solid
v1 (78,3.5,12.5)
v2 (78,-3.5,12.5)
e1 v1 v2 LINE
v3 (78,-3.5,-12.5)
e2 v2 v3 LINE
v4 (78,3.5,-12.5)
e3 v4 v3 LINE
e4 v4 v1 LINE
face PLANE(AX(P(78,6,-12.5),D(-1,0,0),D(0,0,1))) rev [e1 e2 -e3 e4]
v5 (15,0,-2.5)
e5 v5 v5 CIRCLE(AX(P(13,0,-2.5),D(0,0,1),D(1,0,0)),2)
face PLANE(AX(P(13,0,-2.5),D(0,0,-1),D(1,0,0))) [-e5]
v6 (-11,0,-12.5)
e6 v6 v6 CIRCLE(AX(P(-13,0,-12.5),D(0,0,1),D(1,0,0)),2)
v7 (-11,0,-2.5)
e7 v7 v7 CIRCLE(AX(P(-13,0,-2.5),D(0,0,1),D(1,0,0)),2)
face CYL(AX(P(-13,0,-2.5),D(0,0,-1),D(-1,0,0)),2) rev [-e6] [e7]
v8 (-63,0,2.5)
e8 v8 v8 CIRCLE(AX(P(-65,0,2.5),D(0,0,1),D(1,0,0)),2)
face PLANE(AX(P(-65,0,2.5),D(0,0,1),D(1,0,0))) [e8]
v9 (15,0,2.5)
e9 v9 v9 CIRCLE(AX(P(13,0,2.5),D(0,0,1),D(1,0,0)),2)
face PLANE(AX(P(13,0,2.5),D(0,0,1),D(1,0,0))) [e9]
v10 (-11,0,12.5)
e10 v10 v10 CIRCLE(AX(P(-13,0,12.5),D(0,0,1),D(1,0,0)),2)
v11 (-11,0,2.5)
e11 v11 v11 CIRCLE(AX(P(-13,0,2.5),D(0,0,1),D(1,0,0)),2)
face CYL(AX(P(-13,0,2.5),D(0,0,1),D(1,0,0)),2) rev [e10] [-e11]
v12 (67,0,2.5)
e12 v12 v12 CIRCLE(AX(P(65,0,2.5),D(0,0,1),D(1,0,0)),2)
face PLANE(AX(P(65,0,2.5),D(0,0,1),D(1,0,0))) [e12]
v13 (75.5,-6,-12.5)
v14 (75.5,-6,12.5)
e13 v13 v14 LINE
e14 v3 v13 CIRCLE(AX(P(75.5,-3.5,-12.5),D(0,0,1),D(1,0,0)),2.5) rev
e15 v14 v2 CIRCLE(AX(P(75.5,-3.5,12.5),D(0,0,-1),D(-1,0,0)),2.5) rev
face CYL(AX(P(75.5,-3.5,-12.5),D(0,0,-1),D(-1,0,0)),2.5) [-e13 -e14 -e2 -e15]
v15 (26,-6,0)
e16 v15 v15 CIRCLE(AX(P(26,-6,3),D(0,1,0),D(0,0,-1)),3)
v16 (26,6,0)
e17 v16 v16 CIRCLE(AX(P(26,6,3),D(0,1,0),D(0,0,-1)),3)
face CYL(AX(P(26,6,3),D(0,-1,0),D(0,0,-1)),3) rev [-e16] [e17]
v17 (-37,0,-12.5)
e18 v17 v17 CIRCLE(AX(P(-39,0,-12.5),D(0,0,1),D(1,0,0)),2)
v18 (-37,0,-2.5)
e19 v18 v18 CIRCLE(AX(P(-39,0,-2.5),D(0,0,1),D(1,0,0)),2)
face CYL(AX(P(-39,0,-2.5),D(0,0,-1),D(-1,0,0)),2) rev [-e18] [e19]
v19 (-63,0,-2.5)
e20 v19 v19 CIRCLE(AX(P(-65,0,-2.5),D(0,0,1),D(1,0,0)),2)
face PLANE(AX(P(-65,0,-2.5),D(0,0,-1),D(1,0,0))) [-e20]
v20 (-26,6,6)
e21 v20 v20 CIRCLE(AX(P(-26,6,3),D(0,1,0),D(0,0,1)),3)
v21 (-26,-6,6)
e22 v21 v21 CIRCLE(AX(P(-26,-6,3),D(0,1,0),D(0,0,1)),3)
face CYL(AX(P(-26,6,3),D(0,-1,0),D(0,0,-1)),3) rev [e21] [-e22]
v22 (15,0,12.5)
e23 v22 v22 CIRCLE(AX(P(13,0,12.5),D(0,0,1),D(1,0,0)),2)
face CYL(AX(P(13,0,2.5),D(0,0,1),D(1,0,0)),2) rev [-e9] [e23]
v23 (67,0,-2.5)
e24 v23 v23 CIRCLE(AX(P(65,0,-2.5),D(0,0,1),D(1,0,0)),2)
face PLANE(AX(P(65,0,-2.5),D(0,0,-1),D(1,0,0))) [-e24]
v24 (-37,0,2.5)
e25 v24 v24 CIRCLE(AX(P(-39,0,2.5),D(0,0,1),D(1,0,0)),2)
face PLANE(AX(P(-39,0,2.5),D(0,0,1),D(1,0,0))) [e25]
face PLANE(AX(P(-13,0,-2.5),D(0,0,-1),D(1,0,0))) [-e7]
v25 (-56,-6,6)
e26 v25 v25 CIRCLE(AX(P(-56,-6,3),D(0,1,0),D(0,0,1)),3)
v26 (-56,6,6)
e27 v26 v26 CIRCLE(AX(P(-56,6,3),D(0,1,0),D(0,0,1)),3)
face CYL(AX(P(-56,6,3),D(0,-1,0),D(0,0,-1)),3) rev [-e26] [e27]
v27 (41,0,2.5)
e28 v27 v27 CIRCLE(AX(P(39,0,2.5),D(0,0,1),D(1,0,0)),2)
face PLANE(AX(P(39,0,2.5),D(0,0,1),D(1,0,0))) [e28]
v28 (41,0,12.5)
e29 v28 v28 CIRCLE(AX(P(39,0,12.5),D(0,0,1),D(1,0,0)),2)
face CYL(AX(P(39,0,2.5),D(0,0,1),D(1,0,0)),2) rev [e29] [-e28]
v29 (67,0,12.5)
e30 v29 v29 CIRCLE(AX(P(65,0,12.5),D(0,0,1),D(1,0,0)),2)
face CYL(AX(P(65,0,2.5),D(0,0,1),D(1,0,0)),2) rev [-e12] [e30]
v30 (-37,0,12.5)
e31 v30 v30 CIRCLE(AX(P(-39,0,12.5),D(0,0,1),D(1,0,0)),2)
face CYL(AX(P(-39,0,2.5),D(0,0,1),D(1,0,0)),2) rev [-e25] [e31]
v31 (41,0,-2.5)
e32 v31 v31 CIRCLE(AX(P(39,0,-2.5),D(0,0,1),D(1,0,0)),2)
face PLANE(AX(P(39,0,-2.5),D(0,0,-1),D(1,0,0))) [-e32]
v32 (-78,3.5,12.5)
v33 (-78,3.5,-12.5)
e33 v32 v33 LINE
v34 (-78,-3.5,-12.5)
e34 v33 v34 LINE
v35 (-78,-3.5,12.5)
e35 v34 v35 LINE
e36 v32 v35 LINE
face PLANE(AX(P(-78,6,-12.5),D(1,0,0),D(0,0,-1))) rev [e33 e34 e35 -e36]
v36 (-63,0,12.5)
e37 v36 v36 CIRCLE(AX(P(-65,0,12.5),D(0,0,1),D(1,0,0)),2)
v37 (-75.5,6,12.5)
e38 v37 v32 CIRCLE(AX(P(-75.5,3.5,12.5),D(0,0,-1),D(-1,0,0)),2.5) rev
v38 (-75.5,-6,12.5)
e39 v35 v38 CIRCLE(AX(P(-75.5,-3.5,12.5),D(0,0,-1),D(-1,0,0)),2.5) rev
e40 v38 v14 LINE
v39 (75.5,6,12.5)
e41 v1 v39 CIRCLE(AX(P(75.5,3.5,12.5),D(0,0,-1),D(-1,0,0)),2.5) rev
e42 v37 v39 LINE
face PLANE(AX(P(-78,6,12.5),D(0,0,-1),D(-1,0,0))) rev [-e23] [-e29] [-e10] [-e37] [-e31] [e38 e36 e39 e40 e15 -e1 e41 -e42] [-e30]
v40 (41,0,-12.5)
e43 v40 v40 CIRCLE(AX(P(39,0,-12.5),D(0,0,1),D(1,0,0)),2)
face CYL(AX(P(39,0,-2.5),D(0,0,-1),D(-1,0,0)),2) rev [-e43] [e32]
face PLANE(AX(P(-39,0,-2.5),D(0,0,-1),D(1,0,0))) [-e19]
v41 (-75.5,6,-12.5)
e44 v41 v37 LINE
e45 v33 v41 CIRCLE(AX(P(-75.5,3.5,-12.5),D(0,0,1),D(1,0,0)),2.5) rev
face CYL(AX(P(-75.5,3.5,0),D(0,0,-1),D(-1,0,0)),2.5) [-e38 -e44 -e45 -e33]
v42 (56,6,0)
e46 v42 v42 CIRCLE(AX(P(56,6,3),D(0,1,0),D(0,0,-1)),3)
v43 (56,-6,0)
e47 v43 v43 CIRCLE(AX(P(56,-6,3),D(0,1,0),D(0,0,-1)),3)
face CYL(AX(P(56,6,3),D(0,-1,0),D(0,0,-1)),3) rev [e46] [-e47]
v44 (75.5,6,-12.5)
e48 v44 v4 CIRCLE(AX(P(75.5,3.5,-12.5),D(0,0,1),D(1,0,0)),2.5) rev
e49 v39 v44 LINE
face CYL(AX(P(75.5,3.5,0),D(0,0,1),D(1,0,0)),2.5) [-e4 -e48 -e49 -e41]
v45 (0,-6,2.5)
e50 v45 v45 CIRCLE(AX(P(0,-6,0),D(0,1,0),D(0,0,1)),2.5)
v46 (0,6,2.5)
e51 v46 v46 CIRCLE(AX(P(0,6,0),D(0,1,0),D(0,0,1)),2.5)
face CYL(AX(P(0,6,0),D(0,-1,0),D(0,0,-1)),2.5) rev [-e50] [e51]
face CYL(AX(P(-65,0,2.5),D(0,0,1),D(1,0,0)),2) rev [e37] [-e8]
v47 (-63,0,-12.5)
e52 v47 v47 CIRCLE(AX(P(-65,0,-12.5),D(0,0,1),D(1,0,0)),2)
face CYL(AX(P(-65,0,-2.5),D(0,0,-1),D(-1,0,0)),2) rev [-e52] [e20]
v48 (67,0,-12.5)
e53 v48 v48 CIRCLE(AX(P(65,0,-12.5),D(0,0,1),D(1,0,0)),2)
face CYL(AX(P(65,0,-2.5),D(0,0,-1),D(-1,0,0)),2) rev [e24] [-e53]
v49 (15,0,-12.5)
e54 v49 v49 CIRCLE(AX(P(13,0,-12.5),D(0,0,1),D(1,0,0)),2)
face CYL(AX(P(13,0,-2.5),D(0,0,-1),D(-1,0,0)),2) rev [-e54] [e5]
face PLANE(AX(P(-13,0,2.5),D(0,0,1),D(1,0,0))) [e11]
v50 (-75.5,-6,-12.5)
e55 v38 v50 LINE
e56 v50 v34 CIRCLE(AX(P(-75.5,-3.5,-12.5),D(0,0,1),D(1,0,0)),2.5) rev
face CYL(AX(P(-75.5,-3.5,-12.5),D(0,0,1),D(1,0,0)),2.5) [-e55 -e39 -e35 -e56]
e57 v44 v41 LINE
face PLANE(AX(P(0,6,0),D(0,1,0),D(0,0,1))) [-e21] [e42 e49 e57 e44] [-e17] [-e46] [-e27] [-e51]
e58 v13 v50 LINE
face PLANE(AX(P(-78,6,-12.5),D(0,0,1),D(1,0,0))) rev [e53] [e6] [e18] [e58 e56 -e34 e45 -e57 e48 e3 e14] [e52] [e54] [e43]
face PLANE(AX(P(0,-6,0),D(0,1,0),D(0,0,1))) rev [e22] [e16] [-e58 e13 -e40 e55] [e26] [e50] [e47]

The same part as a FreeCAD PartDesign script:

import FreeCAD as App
import Part
import Sketcher
from FreeCAD import Vector
Q = App.Units.Quantity


def edges_at(feature, points):
    """Names of the edges that pass closest to the given points."""
    edges = feature.Shape.Edges
    near = lambda p: min(range(len(edges)), key=lambda i: edges[i].distToShape(Part.Vertex(*p))[0])
    return sorted({f"Edge{near(p) + 1}" for p in points})


def add_polygon(sketch, points):
    """Adds a closed chain of lines whose ends are joined by coincident constraints."""
    first, n = sketch.GeometryCount, len(points)
    for a, b in zip(points, points[1:] + points[:1]):
        sketch.addGeometry(Part.LineSegment(App.Vector(*a, 0), App.Vector(*b, 0)), False)
    for i in range(n):
        sketch.addConstraint(Sketcher.Constraint("Coincident", first + i, 2, first + (i + 1) % n, 1))

doc = App.newDocument("Part")
params = doc.addObject("Spreadsheet::Sheet", "Params")
for row, (alias, value) in enumerate([
    ("sketch1_diameter", "6 mm"),
    ("sketch1_diameter2", "5 mm"),
    ("sketch1_width", "156 mm"),
    ("sketch1_height", "25 mm"),
    ("pad1_length", "12 mm"),
    ("fillet_radius", "2.5 mm"),
    ("sketch2_diameter", "4 mm"),
    ("pocket1_length", "10 mm"),
    ("linearpattern_pitch", "26 mm"),
    ("sketch3_diameter", "4 mm"),
    ("pocket2_length", "10 mm"),
    ("sketch4_diameter", "4 mm"),
    ("pocket3_length", "10 mm"),
    ("sketch5_diameter", "4 mm"),
    ("pocket4_length", "10 mm"),
    ("sketch6_diameter", "4 mm"),
    ("pocket5_length", "10 mm"),
    ("sketch7_diameter", "4 mm"),
    ("pocket6_length", "10 mm"),
], start=1):
    params.set(f"A{row}", alias)
    params.set(f"B{row}", "=" + value)
    params.setAlias(f"B{row}", alias)

body = doc.addObject("PartDesign::Body", "Body")

# Sketch on XZ plane
sketch1 = body.newObject("Sketcher::SketchObject", "Sketch")
sketch1.AttachmentSupport = (doc.getObject("XZ_Plane"), [""])
sketch1.MapMode = "FlatFace"
add_polygon(sketch1, [(-78, -12.5), (-78, 12.5), (78, 12.5), (78, -12.5)])  # lines 0-3
sketch1.addGeometry(Part.Circle(Vector(-56, 3, 0), Vector(0, 0, 1), 3), False)  # 4
sketch1.addGeometry(Part.Circle(Vector(-26, 3, 0), Vector(0, 0, 1), 3), False)  # 5
sketch1.addGeometry(Part.Circle(Vector(26, 3, 0), Vector(0, 0, 1), 3), False)  # 6
sketch1.addGeometry(Part.Circle(Vector(56, 3, 0), Vector(0, 0, 1), 3), False)  # 7
sketch1.addGeometry(Part.Circle(Vector(0, 0, 0), Vector(0, 0, 1), 2.5), False)  # 8
sketch1.addConstraint([
    Sketcher.Constraint("Vertical", 0),
    Sketcher.Constraint("Horizontal", 1),
    Sketcher.Constraint("Vertical", 2),
    Sketcher.Constraint("Horizontal", 3),
    Sketcher.Constraint("Coincident", 8, 3, -1, 1),
    Sketcher.Constraint("Equal", 4, 5),
    Sketcher.Constraint("Equal", 5, 6),
    Sketcher.Constraint("Equal", 6, 7),
    Sketcher.Constraint("Symmetric", 0, 2, 2, 2, -1, 1),
    Sketcher.Constraint("Symmetric", 5, 3, 6, 3, -2),
    Sketcher.Constraint("Symmetric", 4, 3, 7, 3, -2),
    Sketcher.Constraint("Horizontal", 4, 3, 5, 3),
    Sketcher.Constraint("Diameter", 4, Q("6 mm")),
    Sketcher.Constraint("Diameter", 8, Q("5 mm")),
    Sketcher.Constraint("DistanceX", 1, 1, 1, 2, Q("156 mm")),
    Sketcher.Constraint("DistanceY", 0, 1, 0, 2, Q("25 mm")),
    Sketcher.Constraint("DistanceX", 4, 3, -1, 1, Q("56 mm")),
    Sketcher.Constraint("DistanceY", -1, 1, 4, 3, Q("3 mm")),
    Sketcher.Constraint("DistanceX", 5, 3, -1, 1, Q("26 mm")),
])
sketch1.setExpression("Constraints[16]", "Params.sketch1_diameter")
sketch1.setExpression("Constraints[17]", "Params.sketch1_diameter2")
sketch1.setExpression("Constraints[18]", "Params.sketch1_width")
sketch1.setExpression("Constraints[19]", "Params.sketch1_height")
pad1 = body.newObject("PartDesign::Pad", "Pad")
pad1.Profile = sketch1
pad1.setExpression("Length", "Params.pad1_length")
pad1.Midplane = True
doc.recompute()

fillet = body.newObject("PartDesign::Fillet", "Fillet")
fillet.Base = (pad1, edges_at(pad1, [
    (-78, 6, 0),
    (78, 6, 0),
    (-78, -6, 0),
    (78, -6, 0),
]))
fillet.setExpression("Radius", "Params.fillet_radius")

# Sketch on XY plane
sketch2 = body.newObject("Sketcher::SketchObject", "Sketch001")
sketch2.AttachmentSupport = (doc.getObject("XY_Plane"), [""])
sketch2.MapMode = "FlatFace"
sketch2.AttachmentOffset = App.Placement(Vector(0, 0, 12.5), App.Rotation())
sketch2.addGeometry(Part.Circle(Vector(-65, 0, 0), Vector(0, 0, 1), 2), False)
sketch2.addConstraint([
    Sketcher.Constraint("PointOnObject", 0, 3, -1),
    Sketcher.Constraint("Diameter", 0, Q("4 mm")),
    Sketcher.Constraint("DistanceX", 0, 3, -1, 1, Q("65 mm")),
])
sketch2.setExpression("Constraints[1]", "Params.sketch2_diameter")
pocket1 = body.newObject("PartDesign::Pocket", "Pocket")
pocket1.Profile = sketch2
pocket1.setExpression("Length", "Params.pocket1_length")
doc.recompute()

linearpattern = body.newObject("PartDesign::LinearPattern", "LinearPattern")
linearpattern.Originals = [pocket1]
linearpattern.Direction = (doc.getObject("X_Axis"), [""])
linearpattern.Mode = "offset"
linearpattern.setExpression("Offset", "Params.linearpattern_pitch")
linearpattern.Occurrences = 6
body.Tip = linearpattern
doc.recompute()

mirrored = body.newObject("PartDesign::Mirrored", "Mirrored")
mirrored.Originals = [pocket1]
mirrored.MirrorPlane = (doc.getObject("XY_Plane"), [""])
body.Tip = mirrored

# Sketch on XY plane
sketch3 = body.newObject("Sketcher::SketchObject", "Sketch002")
sketch3.AttachmentSupport = (doc.getObject("XY_Plane"), [""])
sketch3.MapMode = "FlatFace"
sketch3.AttachmentOffset = App.Placement(Vector(0, 0, -12.5), App.Rotation())
sketch3.addGeometry(Part.Circle(Vector(-39, 0, 0), Vector(0, 0, 1), 2), False)
sketch3.addConstraint([
    Sketcher.Constraint("PointOnObject", 0, 3, -1),
    Sketcher.Constraint("Diameter", 0, Q("4 mm")),
    Sketcher.Constraint("DistanceX", 0, 3, -1, 1, Q("39 mm")),
])
sketch3.setExpression("Constraints[1]", "Params.sketch3_diameter")
pocket2 = body.newObject("PartDesign::Pocket", "Pocket001")
pocket2.Profile = sketch3
pocket2.setExpression("Length", "Params.pocket2_length")
pocket2.Reversed = True

# Sketch on XY plane
sketch4 = body.newObject("Sketcher::SketchObject", "Sketch003")
sketch4.AttachmentSupport = (doc.getObject("XY_Plane"), [""])
sketch4.MapMode = "FlatFace"
sketch4.AttachmentOffset = App.Placement(Vector(0, 0, -12.5), App.Rotation())
sketch4.addGeometry(Part.Circle(Vector(-13, 0, 0), Vector(0, 0, 1), 2), False)
sketch4.addConstraint([
    Sketcher.Constraint("PointOnObject", 0, 3, -1),
    Sketcher.Constraint("Diameter", 0, Q("4 mm")),
    Sketcher.Constraint("DistanceX", 0, 3, -1, 1, Q("13 mm")),
])
sketch4.setExpression("Constraints[1]", "Params.sketch4_diameter")
pocket3 = body.newObject("PartDesign::Pocket", "Pocket002")
pocket3.Profile = sketch4
pocket3.setExpression("Length", "Params.pocket3_length")
pocket3.Reversed = True

# Sketch on XY plane
sketch5 = body.newObject("Sketcher::SketchObject", "Sketch004")
sketch5.AttachmentSupport = (doc.getObject("XY_Plane"), [""])
sketch5.MapMode = "FlatFace"
sketch5.AttachmentOffset = App.Placement(Vector(0, 0, -12.5), App.Rotation())
sketch5.addGeometry(Part.Circle(Vector(13, 0, 0), Vector(0, 0, 1), 2), False)
sketch5.addConstraint([
    Sketcher.Constraint("PointOnObject", 0, 3, -1),
    Sketcher.Constraint("Diameter", 0, Q("4 mm")),
    Sketcher.Constraint("DistanceX", -1, 1, 0, 3, Q("13 mm")),
])
sketch5.setExpression("Constraints[1]", "Params.sketch5_diameter")
pocket4 = body.newObject("PartDesign::Pocket", "Pocket003")
pocket4.Profile = sketch5
pocket4.setExpression("Length", "Params.pocket4_length")
pocket4.Reversed = True

# Sketch on XY plane
sketch6 = body.newObject("Sketcher::SketchObject", "Sketch005")
sketch6.AttachmentSupport = (doc.getObject("XY_Plane"), [""])
sketch6.MapMode = "FlatFace"
sketch6.AttachmentOffset = App.Placement(Vector(0, 0, -12.5), App.Rotation())
sketch6.addGeometry(Part.Circle(Vector(39, 0, 0), Vector(0, 0, 1), 2), False)
sketch6.addConstraint([
    Sketcher.Constraint("PointOnObject", 0, 3, -1),
    Sketcher.Constraint("Diameter", 0, Q("4 mm")),
    Sketcher.Constraint("DistanceX", -1, 1, 0, 3, Q("39 mm")),
])
sketch6.setExpression("Constraints[1]", "Params.sketch6_diameter")
pocket5 = body.newObject("PartDesign::Pocket", "Pocket004")
pocket5.Profile = sketch6
pocket5.setExpression("Length", "Params.pocket5_length")
pocket5.Reversed = True

# Sketch on XY plane
sketch7 = body.newObject("Sketcher::SketchObject", "Sketch006")
sketch7.AttachmentSupport = (doc.getObject("XY_Plane"), [""])
sketch7.MapMode = "FlatFace"
sketch7.AttachmentOffset = App.Placement(Vector(0, 0, -12.5), App.Rotation())
sketch7.addGeometry(Part.Circle(Vector(65, 0, 0), Vector(0, 0, 1), 2), False)
sketch7.addConstraint([
    Sketcher.Constraint("PointOnObject", 0, 3, -1),
    Sketcher.Constraint("Diameter", 0, Q("4 mm")),
    Sketcher.Constraint("DistanceX", -1, 1, 0, 3, Q("65 mm")),
])
sketch7.setExpression("Constraints[1]", "Params.sketch7_diameter")
pocket6 = body.newObject("PartDesign::Pocket", "Pocket005")
pocket6.Profile = sketch7
pocket6.setExpression("Length", "Params.pocket6_length")
pocket6.Reversed = True

doc.recompute()
